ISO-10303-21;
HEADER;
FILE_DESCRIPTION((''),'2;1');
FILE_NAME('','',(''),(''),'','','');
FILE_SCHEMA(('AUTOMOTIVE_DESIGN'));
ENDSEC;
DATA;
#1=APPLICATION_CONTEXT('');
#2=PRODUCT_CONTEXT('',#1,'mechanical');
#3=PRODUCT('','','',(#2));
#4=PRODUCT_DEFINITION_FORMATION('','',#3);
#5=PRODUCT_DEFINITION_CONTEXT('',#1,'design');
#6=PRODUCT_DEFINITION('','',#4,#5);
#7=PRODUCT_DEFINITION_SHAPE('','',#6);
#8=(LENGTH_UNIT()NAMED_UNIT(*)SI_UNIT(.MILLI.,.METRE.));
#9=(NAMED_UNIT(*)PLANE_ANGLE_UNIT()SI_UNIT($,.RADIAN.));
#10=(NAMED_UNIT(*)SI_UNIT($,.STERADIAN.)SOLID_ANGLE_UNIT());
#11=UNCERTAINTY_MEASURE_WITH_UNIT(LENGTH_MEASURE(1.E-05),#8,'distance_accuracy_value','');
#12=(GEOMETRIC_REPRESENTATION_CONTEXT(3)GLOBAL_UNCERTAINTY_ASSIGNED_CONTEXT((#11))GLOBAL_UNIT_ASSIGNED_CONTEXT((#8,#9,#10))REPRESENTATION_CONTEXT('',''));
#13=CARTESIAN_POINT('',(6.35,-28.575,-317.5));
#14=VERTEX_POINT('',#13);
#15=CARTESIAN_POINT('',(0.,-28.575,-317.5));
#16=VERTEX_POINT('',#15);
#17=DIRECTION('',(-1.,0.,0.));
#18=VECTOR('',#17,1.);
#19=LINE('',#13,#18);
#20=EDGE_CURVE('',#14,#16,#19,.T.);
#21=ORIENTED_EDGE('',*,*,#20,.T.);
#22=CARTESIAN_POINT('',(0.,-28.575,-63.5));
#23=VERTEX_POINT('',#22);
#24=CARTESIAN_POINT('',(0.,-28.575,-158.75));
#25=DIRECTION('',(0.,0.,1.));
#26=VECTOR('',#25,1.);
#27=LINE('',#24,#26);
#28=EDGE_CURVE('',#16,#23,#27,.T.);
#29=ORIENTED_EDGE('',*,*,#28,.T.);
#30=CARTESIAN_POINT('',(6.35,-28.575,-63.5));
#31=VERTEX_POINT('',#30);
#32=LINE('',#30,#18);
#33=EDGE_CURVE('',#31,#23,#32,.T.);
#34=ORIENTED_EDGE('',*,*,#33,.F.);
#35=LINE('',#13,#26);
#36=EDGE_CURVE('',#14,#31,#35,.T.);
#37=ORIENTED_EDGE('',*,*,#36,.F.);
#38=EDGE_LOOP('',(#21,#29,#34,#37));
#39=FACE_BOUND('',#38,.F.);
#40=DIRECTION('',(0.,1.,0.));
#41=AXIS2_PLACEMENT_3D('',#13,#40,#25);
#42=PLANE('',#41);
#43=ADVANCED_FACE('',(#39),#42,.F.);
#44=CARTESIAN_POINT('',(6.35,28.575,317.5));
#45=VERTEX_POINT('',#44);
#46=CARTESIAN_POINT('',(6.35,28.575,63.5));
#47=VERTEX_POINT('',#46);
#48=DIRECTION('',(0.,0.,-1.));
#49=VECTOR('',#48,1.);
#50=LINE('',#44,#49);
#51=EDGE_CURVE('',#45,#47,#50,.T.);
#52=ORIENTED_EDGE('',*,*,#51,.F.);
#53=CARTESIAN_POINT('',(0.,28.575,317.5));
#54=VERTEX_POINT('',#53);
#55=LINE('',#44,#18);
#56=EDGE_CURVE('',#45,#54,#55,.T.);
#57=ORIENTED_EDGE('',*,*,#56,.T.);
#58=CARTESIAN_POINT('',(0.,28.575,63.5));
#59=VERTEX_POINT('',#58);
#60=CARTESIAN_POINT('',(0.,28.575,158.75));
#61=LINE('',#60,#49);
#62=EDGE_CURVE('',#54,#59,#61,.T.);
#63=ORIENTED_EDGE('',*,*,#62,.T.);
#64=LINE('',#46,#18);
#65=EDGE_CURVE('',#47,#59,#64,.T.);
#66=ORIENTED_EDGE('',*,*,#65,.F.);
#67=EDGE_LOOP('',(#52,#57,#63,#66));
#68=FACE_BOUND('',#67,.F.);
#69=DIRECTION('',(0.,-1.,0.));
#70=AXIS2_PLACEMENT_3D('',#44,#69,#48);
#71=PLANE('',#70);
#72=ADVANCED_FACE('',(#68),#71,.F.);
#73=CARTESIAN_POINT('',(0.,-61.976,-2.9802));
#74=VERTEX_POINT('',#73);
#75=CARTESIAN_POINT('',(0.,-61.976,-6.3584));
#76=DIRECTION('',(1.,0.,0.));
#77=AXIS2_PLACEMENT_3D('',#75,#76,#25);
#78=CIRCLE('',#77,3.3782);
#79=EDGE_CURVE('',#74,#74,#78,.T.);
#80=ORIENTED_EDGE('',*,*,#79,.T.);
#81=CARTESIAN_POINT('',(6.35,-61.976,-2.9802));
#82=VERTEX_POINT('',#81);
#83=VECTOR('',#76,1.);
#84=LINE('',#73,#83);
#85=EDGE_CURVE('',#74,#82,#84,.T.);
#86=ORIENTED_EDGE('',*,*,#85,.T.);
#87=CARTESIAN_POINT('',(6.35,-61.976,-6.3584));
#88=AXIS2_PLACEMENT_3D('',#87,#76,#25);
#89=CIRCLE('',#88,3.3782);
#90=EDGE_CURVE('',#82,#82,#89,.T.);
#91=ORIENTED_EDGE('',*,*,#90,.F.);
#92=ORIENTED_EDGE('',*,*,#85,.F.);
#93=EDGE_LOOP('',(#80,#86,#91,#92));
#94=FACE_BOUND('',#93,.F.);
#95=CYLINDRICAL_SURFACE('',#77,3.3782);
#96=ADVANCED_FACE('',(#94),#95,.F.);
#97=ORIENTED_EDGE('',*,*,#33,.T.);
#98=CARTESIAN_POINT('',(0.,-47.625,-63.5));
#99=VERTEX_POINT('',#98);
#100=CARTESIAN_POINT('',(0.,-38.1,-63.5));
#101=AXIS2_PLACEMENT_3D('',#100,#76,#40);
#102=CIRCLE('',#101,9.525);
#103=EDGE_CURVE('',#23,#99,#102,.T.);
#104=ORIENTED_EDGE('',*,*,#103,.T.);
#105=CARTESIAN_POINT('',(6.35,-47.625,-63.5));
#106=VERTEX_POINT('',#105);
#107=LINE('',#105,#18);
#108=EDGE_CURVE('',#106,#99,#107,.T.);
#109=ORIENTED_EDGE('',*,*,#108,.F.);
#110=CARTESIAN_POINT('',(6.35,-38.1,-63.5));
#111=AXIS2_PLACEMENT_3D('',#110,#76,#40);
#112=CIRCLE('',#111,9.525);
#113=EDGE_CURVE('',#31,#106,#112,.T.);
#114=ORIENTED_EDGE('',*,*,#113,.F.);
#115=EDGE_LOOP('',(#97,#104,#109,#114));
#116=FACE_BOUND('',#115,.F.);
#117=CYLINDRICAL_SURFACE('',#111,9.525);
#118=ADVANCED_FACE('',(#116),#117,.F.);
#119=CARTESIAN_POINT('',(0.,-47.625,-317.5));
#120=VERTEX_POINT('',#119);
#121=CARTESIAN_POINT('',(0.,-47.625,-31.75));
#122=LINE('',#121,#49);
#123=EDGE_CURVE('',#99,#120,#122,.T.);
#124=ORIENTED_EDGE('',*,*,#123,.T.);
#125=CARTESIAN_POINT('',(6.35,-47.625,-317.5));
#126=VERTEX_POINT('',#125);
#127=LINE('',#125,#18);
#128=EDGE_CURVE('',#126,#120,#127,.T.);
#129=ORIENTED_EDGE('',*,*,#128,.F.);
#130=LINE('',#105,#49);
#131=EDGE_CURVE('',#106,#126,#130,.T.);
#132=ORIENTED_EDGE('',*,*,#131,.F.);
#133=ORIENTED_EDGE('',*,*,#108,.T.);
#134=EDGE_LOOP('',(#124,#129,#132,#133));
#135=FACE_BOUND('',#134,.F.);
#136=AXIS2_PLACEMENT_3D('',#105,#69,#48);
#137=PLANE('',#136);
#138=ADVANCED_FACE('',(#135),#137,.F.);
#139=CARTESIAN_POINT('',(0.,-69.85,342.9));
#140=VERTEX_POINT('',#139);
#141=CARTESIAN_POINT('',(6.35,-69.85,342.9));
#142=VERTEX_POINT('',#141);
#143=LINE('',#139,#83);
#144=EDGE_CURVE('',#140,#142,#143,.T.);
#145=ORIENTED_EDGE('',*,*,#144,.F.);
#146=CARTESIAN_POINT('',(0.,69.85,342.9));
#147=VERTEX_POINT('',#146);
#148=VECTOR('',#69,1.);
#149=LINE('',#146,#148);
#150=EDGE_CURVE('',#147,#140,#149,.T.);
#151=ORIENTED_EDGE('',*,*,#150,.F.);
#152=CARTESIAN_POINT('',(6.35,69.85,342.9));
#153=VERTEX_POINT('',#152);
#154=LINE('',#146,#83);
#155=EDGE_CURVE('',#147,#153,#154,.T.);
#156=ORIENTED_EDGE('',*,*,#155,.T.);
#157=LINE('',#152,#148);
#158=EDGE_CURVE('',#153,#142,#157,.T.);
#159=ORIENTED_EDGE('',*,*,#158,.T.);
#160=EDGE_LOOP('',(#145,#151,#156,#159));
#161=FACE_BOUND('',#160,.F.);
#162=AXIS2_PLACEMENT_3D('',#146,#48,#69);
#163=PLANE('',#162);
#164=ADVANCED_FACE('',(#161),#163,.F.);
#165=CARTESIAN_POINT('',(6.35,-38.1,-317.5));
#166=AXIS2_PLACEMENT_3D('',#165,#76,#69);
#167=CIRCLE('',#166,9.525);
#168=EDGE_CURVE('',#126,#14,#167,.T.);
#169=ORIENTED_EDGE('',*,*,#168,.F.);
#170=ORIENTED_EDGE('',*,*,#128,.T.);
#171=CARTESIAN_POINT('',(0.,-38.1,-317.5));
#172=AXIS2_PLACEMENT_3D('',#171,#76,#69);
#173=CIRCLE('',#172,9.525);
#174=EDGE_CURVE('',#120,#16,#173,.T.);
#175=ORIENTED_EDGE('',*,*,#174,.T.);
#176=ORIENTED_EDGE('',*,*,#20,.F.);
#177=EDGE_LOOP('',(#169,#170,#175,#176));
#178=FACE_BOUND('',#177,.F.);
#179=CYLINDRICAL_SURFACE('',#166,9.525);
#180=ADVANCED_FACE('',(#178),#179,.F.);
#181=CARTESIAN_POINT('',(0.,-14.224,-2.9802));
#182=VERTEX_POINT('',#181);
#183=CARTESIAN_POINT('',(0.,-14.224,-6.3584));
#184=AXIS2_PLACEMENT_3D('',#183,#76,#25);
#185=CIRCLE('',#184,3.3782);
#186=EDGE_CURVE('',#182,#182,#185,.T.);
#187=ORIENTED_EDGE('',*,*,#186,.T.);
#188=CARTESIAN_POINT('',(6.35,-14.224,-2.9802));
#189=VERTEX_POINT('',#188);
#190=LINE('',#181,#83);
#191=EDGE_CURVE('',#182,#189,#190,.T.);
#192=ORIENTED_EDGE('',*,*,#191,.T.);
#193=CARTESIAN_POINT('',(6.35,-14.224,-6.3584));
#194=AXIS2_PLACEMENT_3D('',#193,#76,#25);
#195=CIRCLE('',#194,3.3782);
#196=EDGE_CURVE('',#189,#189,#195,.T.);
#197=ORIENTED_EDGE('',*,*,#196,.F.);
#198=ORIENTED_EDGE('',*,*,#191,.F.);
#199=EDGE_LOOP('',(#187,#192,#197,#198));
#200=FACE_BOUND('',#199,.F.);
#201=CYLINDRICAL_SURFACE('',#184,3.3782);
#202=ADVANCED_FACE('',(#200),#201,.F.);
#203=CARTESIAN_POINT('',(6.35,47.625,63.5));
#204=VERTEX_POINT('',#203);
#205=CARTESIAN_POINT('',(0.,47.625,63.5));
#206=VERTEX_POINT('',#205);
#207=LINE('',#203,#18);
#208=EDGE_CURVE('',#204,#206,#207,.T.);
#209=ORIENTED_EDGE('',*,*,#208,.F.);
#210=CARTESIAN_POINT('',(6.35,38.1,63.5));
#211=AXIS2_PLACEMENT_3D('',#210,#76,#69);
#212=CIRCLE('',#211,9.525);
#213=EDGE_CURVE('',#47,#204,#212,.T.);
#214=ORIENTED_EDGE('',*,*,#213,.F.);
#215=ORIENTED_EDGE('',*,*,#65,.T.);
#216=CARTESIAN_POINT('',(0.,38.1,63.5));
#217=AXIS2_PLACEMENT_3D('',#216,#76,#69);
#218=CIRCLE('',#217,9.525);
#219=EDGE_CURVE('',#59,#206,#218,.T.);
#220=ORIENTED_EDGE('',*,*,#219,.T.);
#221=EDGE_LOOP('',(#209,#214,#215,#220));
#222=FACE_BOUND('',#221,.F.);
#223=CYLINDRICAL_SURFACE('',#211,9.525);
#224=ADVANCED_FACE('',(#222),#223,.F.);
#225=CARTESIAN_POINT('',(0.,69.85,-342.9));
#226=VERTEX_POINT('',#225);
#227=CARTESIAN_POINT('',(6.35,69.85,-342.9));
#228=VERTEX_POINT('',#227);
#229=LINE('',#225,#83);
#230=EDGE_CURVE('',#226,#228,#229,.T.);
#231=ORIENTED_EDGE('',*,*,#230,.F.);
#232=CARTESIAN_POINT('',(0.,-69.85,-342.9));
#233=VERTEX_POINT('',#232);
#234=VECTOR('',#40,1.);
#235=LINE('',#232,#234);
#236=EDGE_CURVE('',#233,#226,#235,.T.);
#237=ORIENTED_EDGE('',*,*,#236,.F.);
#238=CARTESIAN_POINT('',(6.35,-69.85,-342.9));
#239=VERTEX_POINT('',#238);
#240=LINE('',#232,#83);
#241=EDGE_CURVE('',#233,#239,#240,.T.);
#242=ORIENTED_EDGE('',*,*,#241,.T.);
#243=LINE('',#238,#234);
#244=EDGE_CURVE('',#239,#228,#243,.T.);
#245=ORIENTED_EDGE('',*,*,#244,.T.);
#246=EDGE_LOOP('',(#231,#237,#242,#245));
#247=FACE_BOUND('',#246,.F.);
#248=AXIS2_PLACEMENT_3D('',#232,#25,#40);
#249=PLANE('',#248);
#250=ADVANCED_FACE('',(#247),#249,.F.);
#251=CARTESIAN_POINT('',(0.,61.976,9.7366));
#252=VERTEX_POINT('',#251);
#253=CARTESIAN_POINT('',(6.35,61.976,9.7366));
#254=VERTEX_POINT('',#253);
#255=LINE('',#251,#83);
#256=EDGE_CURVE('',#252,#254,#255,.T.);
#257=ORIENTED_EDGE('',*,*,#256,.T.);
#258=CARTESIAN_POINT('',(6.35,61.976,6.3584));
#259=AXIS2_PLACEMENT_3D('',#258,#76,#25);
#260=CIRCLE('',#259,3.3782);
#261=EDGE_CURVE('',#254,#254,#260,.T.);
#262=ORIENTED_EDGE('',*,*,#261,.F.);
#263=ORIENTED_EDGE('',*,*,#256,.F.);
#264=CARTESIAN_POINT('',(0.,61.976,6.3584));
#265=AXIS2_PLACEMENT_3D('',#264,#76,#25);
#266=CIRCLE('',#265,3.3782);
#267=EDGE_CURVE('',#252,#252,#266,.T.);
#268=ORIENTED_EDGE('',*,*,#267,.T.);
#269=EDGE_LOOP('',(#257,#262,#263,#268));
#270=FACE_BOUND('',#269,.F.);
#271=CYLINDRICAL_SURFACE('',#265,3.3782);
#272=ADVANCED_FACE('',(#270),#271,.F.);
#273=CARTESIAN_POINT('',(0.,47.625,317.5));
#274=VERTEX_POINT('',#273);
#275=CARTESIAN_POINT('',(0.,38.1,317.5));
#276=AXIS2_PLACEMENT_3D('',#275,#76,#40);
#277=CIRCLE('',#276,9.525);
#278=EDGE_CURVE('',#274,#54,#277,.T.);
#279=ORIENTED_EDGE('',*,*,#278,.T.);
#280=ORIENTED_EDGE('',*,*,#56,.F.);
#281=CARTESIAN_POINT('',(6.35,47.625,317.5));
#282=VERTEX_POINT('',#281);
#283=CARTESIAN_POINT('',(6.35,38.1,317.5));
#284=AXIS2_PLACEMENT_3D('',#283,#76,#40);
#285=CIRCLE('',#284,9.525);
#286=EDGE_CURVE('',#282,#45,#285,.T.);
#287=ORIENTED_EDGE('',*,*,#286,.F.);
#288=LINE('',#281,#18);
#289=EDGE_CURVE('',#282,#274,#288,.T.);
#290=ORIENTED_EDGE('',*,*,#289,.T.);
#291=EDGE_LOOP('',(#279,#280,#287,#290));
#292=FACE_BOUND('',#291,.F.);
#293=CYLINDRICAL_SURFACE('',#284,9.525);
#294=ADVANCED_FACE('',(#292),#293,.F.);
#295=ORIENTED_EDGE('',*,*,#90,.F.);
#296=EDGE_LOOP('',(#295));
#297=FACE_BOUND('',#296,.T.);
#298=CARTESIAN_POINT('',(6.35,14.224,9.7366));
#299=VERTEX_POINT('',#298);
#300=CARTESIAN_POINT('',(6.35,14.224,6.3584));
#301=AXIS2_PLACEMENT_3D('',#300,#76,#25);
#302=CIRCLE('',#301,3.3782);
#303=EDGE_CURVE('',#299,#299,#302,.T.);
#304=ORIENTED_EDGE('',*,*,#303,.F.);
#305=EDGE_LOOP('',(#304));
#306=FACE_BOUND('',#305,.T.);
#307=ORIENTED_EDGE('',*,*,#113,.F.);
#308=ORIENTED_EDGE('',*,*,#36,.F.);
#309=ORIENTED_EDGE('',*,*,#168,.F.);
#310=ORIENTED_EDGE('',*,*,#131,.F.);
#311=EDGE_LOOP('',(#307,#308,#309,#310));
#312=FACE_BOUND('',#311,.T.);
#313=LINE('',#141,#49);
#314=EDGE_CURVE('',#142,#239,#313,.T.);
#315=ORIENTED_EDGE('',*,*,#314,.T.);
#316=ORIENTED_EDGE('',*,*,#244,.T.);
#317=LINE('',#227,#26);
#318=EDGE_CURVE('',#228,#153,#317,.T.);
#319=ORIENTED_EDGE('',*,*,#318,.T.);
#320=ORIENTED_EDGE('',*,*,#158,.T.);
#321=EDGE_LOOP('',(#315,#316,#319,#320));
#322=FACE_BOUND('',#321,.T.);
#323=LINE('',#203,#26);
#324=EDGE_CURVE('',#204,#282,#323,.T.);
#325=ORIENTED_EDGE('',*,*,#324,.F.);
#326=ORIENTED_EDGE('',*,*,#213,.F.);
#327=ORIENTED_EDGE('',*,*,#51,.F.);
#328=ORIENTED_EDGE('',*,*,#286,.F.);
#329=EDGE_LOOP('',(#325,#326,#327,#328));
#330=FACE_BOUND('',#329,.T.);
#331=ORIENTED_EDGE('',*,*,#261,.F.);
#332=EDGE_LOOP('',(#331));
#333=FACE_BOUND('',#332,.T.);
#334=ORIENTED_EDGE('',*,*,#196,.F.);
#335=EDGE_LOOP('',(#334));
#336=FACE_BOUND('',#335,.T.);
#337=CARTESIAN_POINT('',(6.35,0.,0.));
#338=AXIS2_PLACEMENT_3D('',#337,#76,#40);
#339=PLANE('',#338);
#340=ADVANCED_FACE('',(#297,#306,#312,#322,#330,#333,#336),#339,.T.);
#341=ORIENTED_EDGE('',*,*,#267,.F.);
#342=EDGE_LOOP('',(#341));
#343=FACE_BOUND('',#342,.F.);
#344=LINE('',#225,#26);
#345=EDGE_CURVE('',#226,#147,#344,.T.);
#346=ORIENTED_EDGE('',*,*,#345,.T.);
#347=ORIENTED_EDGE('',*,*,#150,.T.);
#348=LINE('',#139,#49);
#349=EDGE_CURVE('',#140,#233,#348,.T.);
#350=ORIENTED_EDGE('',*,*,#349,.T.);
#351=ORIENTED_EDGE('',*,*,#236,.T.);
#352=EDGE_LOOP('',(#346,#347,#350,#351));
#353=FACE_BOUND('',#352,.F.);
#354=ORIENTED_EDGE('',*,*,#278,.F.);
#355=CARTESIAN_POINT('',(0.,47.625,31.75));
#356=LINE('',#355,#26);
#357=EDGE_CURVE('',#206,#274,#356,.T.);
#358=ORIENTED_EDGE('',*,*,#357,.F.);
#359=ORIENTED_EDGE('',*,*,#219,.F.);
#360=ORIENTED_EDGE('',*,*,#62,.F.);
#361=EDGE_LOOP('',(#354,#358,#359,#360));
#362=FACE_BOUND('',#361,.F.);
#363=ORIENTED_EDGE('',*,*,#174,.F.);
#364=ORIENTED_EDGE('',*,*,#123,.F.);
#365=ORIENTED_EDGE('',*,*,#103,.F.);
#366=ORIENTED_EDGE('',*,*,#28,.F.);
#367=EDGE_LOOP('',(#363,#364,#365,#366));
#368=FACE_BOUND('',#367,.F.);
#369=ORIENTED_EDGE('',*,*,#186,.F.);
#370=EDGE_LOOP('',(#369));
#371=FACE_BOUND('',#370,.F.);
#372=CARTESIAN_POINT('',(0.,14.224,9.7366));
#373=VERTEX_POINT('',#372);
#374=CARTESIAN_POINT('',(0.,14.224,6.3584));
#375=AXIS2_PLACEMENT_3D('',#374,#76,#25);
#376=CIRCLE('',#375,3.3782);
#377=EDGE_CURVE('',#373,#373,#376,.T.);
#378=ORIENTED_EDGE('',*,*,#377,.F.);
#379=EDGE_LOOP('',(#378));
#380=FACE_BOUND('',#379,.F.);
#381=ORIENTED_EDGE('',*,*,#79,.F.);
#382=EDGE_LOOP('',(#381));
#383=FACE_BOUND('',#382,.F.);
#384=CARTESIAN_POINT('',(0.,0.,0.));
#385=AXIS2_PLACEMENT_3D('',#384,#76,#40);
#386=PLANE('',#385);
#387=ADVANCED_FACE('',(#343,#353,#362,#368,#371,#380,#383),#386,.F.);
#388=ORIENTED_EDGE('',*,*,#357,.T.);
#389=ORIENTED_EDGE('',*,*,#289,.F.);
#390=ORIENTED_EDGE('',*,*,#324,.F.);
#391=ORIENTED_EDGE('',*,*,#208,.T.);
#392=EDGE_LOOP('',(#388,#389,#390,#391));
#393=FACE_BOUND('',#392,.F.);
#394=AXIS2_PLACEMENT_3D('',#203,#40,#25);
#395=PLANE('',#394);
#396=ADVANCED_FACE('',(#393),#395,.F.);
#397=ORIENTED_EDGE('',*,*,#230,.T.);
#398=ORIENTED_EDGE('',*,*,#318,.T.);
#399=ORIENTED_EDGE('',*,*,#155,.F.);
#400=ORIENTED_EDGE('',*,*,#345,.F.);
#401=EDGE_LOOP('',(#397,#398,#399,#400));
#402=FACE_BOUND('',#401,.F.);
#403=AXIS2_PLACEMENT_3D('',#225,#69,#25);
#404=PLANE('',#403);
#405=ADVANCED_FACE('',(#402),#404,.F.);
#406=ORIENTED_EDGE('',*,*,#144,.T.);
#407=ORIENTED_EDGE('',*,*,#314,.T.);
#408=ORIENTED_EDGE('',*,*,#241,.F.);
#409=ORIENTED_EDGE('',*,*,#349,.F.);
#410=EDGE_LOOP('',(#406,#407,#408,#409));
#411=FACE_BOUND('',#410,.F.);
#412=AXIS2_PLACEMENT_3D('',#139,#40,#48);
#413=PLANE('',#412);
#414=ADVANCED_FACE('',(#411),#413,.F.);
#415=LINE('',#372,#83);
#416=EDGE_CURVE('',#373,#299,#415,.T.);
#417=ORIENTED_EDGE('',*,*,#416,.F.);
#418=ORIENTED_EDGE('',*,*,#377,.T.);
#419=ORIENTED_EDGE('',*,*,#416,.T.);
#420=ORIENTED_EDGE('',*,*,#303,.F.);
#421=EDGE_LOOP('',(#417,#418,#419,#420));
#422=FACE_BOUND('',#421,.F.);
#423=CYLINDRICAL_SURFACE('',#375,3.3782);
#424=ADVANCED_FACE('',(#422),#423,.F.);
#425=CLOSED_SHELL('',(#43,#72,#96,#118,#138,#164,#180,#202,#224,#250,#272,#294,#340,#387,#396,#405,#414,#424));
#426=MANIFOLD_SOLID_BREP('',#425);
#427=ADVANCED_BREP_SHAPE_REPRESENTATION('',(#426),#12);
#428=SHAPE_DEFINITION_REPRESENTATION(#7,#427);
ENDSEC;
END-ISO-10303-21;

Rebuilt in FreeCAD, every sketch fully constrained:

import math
import FreeCAD as App
import Part
import Sketcher

V = App.Vector
Q = App.Units.Quantity

doc = App.newDocument("Part")
body = doc.addObject("PartDesign::Body", "Body")

sketch1 = body.newObject("Sketcher::SketchObject", "Sketch")
sketch1.AttachmentSupport = (doc.getObject("YZ_Plane"), [""])
sketch1.MapMode = "FlatFace"
sketch1.addGeometry([
    Part.LineSegment(V(70, 343, 0), V(-70, 343, 0)),
    Part.LineSegment(V(-70, 343, 0), V(-70, -343, 0)),
    Part.LineSegment(V(-70, -343, 0), V(70, -343, 0)),
    Part.LineSegment(V(70, -343, 0), V(70, 343, 0)),
], False)
sketch1.addConstraint([
    Sketcher.Constraint("Coincident", 0, 2, 1, 1),
    Sketcher.Constraint("Coincident", 1, 2, 2, 1),
    Sketcher.Constraint("Coincident", 2, 2, 3, 1),
    Sketcher.Constraint("Coincident", 3, 2, 0, 1),
    Sketcher.Constraint("Horizontal", 0),
    Sketcher.Constraint("Vertical", 1),
    Sketcher.Constraint("Horizontal", 2),
    Sketcher.Constraint("Vertical", 3),
    Sketcher.Constraint("Symmetric", 0, 2, 2, 2, -1, 1),
    Sketcher.Constraint("DistanceY", 1, 2, 1, 1, Q("27 in")),
    Sketcher.Constraint("DistanceX", 0, 2, 0, 1, Q("5.5 in")),
])
pad1 = body.newObject("PartDesign::Pad", "Pad")
pad1.Profile = sketch1
pad1.Length = Q("0.25 in")

sketch2 = body.newObject("Sketcher::SketchObject", "Sketch001")
sketch2.AttachmentSupport = (doc.getObject("YZ_Plane"), [""])
sketch2.MapMode = "FlatFace"
sketch2.AttachmentOffset = App.Placement(V(0, 0, 0.25 * 25.4), App.Rotation())
sketch2.addGeometry([
    Part.ArcOfCircle(Part.Circle(V(38, 318, 0), V(0, 0, 1), 10), math.radians(0), math.radians(180)),
    Part.LineSegment(V(29, 318, 0), V(29, 64, 0)),
    Part.ArcOfCircle(Part.Circle(V(38, 64, 0), V(0, 0, 1), 10), math.radians(180), math.radians(360)),
    Part.LineSegment(V(48, 64, 0), V(48, 318, 0)),
    Part.ArcOfCircle(Part.Circle(V(-38, -64, 0), V(0, 0, 1), 10), math.radians(0), math.radians(180)),
    Part.LineSegment(V(-48, -64, 0), V(-48, -318, 0)),
    Part.ArcOfCircle(Part.Circle(V(-38, -318, 0), V(0, 0, 1), 10), math.radians(180), math.radians(360)),
    Part.LineSegment(V(-29, -318, 0), V(-29, -64, 0)),
], False)
sketch2.addConstraint([
    Sketcher.Constraint("Tangent", 0, 2, 1, 1),
    Sketcher.Constraint("Tangent", 1, 2, 2, 1),
    Sketcher.Constraint("Tangent", 2, 2, 3, 1),
    Sketcher.Constraint("Tangent", 3, 2, 0, 1),
    Sketcher.Constraint("Tangent", 4, 2, 5, 1),
    Sketcher.Constraint("Tangent", 5, 2, 6, 1),
    Sketcher.Constraint("Tangent", 6, 2, 7, 1),
    Sketcher.Constraint("Tangent", 7, 2, 4, 1),
    Sketcher.Constraint("Vertical", 1),
    Sketcher.Constraint("Vertical", 3),
    Sketcher.Constraint("Vertical", 5),
    Sketcher.Constraint("Vertical", 7),
    Sketcher.Constraint("Equal", 2, 4),
    Sketcher.Constraint("Symmetric", 2, 3, 4, 3, -1, 1),
    Sketcher.Constraint("Equal", 3, 5),
    Sketcher.Constraint("DistanceY", 1, 2, 1, 1, Q("10 in")),
    Sketcher.Constraint("Radius", 0, Q("0.375 in")),
    Sketcher.Constraint("DistanceX", 4, 3, 2, 3, Q("3 in")),
    Sketcher.Constraint("DistanceY", 4, 3, 2, 3, Q("5 in")),
])
pocket1 = body.newObject("PartDesign::Pocket", "Pocket")
pocket1.Profile = sketch2
pocket1.Type = "ThroughAll"

sketch3 = body.newObject("Sketcher::SketchObject", "Sketch002")
sketch3.AttachmentSupport = (doc.getObject("YZ_Plane"), [""])
sketch3.MapMode = "FlatFace"
sketch3.addGeometry([
    Part.Circle(V(62, 6.4, 0), V(0, 0, 1), 3.4),
    Part.Circle(V(-62, -6.4, 0), V(0, 0, 1), 3.4),
    Part.Circle(V(237.8, 80.6, 0), V(0, 0, 1), 3.4),
    Part.Circle(V(-92.9, 47.9, 0), V(0, 0, 1), 3.4),
    Part.Circle(V(14.2, 6.4, 0), V(0, 0, 1), 3.4),
    Part.Circle(V(-14.2, -6.4, 0), V(0, 0, 1), 3.4),
], False)
sketch3.addConstraint([
    Sketcher.Constraint("Equal", 0, 1),
    Sketcher.Constraint("Equal", 1, 2),
    Sketcher.Constraint("Equal", 2, 3),
    Sketcher.Constraint("Equal", 3, 4),
    Sketcher.Constraint("Equal", 4, 5),
    Sketcher.Constraint("Symmetric", 0, 3, 1, 3, -1, 1),
    Sketcher.Constraint("Symmetric", 4, 3, 5, 3, -1, 1),
    Sketcher.Constraint("Horizontal", 0, 3, 4, 3),
    Sketcher.Constraint("Diameter", 0, Q("0.266 in")),
    Sketcher.Constraint("DistanceX", 1, 3, 4, 3, Q("3 in")),
    Sketcher.Constraint("DistanceX", -1, 1, 0, 3, Q("2.44 in")),
    Sketcher.Constraint("DistanceX", 3, 3, 2, 3, Q("13.021 in")),
    Sketcher.Constraint("DistanceY", 0, 3, 2, 3, Q("2.9231 in")),
    Sketcher.Constraint("DistanceY", 1, 3, 3, 3, Q("2.1356 in")),
    Sketcher.Constraint("DistanceY", -1, 1, 0, 3, Q("6.3584 mm")),
    Sketcher.Constraint("DistanceX", -1, 1, 2, 3, Q("237.827 mm")),
])
doc.recompute()
hole = body.newObject("PartDesign::Hole", "Hole")
hole.Profile = sketch3
hole.ThreadType = "None"
hole.Diameter = Q("0.266 in")
hole.DepthType = "ThroughAll"
hole.Reversed = True

doc.recompute()
